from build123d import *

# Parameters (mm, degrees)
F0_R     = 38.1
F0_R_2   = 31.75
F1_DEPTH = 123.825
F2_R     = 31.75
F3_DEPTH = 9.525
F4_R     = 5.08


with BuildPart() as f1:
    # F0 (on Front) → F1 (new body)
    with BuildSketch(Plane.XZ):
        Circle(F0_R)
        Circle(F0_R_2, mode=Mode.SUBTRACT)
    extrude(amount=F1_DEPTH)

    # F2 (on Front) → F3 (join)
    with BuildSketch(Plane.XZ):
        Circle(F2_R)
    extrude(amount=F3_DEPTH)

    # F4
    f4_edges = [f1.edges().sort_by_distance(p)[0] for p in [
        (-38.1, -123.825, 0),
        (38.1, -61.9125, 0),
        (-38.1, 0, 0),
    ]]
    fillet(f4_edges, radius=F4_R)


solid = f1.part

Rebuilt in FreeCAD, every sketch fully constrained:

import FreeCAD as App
import Part
import Sketcher
Q = App.Units.Quantity


def edges_at(feature, points):
    """Names of the edges that pass closest to the given points."""
    edges = feature.Shape.Edges
    near = lambda p: min(range(len(edges)), key=lambda i: edges[i].distToShape(Part.Vertex(*p))[0])
    return sorted({f"Edge{near(p) + 1}" for p in points})

doc = App.newDocument("Part")
body = doc.addObject("PartDesign::Body", "Body")

# Sketch on XZ plane
sketch1 = body.newObject("Sketcher::SketchObject", "Sketch")
sketch1.AttachmentSupport = (doc.getObject("XZ_Plane"), [""])
sketch1.MapMode = "FlatFace"
sketch1.addGeometry(Part.Circle(App.Vector(0, 0, 0), App.Vector(0, 0, 1), 38), False)
sketch1.addGeometry(Part.Circle(App.Vector(0, 0, 0), App.Vector(0, 0, 1), 32), False)
sketch1.addConstraint(Sketcher.Constraint("Coincident", 0, 3, -1, 1))
sketch1.addConstraint(Sketcher.Constraint("Coincident", 1, 3, -1, 1))
sketch1.addConstraint(Sketcher.Constraint("Diameter", 0, Q("3 in")))
sketch1.addConstraint(Sketcher.Constraint("Diameter", 1, Q("2.5 in")))
pad1 = body.newObject("PartDesign::Pad", "Pad")
pad1.Profile = sketch1
pad1.Length = Q("4.875 in")

# Sketch on XZ plane
sketch2 = body.newObject("Sketcher::SketchObject", "Sketch001")
sketch2.AttachmentSupport = (doc.getObject("XZ_Plane"), [""])
sketch2.MapMode = "FlatFace"
sketch2.addGeometry(Part.Circle(App.Vector(0, 0, 0), App.Vector(0, 0, 1), 32), False)
sketch2.addConstraint(Sketcher.Constraint("Coincident", 0, 3, -1, 1))
sketch2.addConstraint(Sketcher.Constraint("Diameter", 0, Q("2.5 in")))
pad2 = body.newObject("PartDesign::Pad", "Pad001")
pad2.Profile = sketch2
pad2.Length = Q("0.375 in")
doc.recompute()

fillet = body.newObject("PartDesign::Fillet", "Fillet")
fillet.Base = (pad2, edges_at(pad2, [(-38.1, -123.825, 0), (38.1, -61.913, 0), (-38.1, 0, 0)]))
fillet.Radius = Q("0.2 in")

doc.recompute()
